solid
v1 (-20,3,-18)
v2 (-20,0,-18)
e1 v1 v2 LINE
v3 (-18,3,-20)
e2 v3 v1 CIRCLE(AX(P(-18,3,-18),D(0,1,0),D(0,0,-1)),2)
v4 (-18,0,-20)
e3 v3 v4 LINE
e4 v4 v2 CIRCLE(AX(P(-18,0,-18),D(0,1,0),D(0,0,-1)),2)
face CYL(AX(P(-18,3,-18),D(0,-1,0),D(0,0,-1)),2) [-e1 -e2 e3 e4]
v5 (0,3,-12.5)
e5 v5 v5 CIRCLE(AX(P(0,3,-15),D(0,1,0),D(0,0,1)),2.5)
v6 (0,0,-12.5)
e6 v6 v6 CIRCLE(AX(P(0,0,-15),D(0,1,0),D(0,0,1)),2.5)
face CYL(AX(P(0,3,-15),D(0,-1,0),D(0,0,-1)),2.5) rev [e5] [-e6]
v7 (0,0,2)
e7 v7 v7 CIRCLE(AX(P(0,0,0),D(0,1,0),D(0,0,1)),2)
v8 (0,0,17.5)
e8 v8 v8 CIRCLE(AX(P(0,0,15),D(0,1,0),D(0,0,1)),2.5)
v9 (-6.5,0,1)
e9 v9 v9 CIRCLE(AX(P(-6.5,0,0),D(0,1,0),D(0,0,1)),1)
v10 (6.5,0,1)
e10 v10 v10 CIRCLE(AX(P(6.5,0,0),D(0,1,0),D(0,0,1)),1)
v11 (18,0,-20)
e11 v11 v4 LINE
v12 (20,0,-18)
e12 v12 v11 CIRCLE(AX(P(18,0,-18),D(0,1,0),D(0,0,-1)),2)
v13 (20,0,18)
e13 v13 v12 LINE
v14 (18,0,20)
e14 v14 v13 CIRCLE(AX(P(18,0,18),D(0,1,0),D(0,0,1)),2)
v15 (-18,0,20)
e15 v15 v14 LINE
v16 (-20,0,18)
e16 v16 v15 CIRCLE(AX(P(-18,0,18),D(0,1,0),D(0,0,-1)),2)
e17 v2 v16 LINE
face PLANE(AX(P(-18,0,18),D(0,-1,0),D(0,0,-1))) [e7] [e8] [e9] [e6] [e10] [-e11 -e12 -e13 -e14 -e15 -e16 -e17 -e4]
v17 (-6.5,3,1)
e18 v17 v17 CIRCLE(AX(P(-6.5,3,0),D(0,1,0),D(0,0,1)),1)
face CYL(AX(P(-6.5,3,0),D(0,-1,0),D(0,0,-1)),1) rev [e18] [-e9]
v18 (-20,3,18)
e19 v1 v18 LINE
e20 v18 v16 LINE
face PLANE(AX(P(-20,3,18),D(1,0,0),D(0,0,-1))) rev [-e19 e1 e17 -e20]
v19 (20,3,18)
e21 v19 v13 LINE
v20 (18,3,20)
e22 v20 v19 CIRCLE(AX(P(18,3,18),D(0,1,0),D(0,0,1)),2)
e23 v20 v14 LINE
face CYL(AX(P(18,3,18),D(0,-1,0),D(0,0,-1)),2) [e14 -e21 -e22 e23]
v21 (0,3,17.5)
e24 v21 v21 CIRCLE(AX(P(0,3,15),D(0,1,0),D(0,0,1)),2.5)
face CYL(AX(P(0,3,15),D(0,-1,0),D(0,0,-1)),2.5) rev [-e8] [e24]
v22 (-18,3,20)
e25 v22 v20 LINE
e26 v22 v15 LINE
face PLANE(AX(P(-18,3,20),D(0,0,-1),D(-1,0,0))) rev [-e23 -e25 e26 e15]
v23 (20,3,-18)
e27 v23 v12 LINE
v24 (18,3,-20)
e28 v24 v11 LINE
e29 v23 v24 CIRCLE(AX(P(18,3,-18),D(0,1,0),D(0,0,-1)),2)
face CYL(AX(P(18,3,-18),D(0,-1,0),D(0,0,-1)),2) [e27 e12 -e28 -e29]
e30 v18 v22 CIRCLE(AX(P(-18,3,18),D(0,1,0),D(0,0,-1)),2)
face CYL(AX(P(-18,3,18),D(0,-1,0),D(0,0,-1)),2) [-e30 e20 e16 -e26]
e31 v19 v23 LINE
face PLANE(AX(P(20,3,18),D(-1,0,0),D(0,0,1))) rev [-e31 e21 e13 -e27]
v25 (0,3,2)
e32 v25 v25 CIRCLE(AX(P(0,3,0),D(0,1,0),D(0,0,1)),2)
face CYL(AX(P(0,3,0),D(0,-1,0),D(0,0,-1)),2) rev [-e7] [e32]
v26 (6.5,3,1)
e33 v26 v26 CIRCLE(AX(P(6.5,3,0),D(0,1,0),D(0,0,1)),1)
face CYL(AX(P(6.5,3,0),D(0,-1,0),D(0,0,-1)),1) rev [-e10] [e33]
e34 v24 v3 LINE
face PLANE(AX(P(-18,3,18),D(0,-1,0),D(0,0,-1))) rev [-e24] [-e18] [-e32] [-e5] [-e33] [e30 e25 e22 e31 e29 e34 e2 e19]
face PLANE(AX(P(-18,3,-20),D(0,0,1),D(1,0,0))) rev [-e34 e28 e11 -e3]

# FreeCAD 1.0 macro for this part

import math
import FreeCAD as App
import Part
import Sketcher
from FreeCAD import Vector
Q = App.Units.Quantity

doc = App.newDocument("Part")
body = doc.addObject("PartDesign::Body", "Body")

sketch1 = doc.addObject("Sketcher::SketchObject", "Sketch")
body.addObject(sketch1)
sketch1.AttachmentSupport = (doc.XZ_Plane, [""])
sketch1.MapMode = "FlatFace"
sketch1.addGeometry([
    Part.LineSegment(Vector(-18, 20, 0), Vector(18, 20, 0)),
    Part.ArcOfCircle(Part.Circle(Vector(18, 18, 0), Vector(0, 0, 1), 2), math.radians(0), math.radians(90)),
    Part.LineSegment(Vector(20, 18, 0), Vector(20, -18, 0)),
    Part.ArcOfCircle(Part.Circle(Vector(18, -18, 0), Vector(0, 0, 1), 2), math.radians(-90), math.radians(0)),
    Part.LineSegment(Vector(18, -20, 0), Vector(-18, -20, 0)),
    Part.ArcOfCircle(Part.Circle(Vector(-18, -18, 0), Vector(0, 0, 1), 2), math.radians(-180), math.radians(-90)),
    Part.LineSegment(Vector(-20, -18, 0), Vector(-20, 18, 0)),
    Part.ArcOfCircle(Part.Circle(Vector(-18, 18, 0), Vector(0, 0, 1), 2), math.radians(90), math.radians(180)),
], False)
sketch1.addConstraint([
    Sketcher.Constraint("Tangent", 0, 2, 1, 2),
    Sketcher.Constraint("Tangent", 1, 1, 2, 1),
    Sketcher.Constraint("Tangent", 2, 2, 3, 2),
    Sketcher.Constraint("Tangent", 3, 1, 4, 1),
    Sketcher.Constraint("Tangent", 4, 2, 5, 2),
    Sketcher.Constraint("Tangent", 5, 1, 6, 1),
    Sketcher.Constraint("Tangent", 6, 2, 7, 2),
    Sketcher.Constraint("Tangent", 7, 1, 0, 1),
    Sketcher.Constraint("Horizontal", 0),
    Sketcher.Constraint("Vertical", 2),
    Sketcher.Constraint("Horizontal", 4),
    Sketcher.Constraint("Vertical", 6),
    Sketcher.Constraint("Equal", 1, 3),
    Sketcher.Constraint("Equal", 3, 5),
    Sketcher.Constraint("Equal", 5, 7),
    Sketcher.Constraint("Symmetric", 1, 3, 5, 3, -1, 1),
    Sketcher.Constraint("Equal", 4, 2),
    Sketcher.Constraint("Radius", 1, Q("2 mm")),
    Sketcher.Constraint("DistanceX", 0, 1, 0, 2, Q("36 mm")),
])
pad1 = doc.addObject("PartDesign::Pad", "Pad")
body.addObject(pad1)
pad1.Profile = sketch1
pad1.Length = 3
pad1.Reversed = True

sketch2 = doc.addObject("Sketcher::SketchObject", "Sketch001")
body.addObject(sketch2)
sketch2.AttachmentSupport = (doc.XZ_Plane, [""])
sketch2.MapMode = "FlatFace"
sketch2.addGeometry([
    Part.Circle(Vector(0, 0, 0), Vector(0, 0, 1), 2),
    Part.Circle(Vector(0, -15, 0), Vector(0, 0, 1), 2.5),
    Part.Circle(Vector(0, 15, 0), Vector(0, 0, 1), 2.5),
], False)
sketch2.addConstraint([
    Sketcher.Constraint("Coincident", 0, 3, -1, 1),
    Sketcher.Constraint("Equal", 1, 2),
    Sketcher.Constraint("Symmetric", 1, 3, 2, 3, -1, 1),
    Sketcher.Constraint("PointOnObject", 1, 3, -2),
    Sketcher.Constraint("Diameter", 0, Q("4 mm")),
    Sketcher.Constraint("Diameter", 1, Q("5 mm")),
    Sketcher.Constraint("DistanceY", 1, 3, -1, 1, Q("15 mm")),
])
pocket1 = doc.addObject("PartDesign::Pocket", "Pocket")
body.addObject(pocket1)
pocket1.Profile = sketch2
pocket1.Type = "ThroughAll"

sketch3 = doc.addObject("Sketcher::SketchObject", "Sketch002")
body.addObject(sketch3)
sketch3.AttachmentSupport = (doc.XZ_Plane, [""])
sketch3.MapMode = "FlatFace"
sketch3.addGeometry([
    Part.Circle(Vector(6.5, 0, 0), Vector(0, 0, 1), 1),
    Part.Circle(Vector(-6.5, 0, 0), Vector(0, 0, 1), 1),
], False)
sketch3.addConstraint([
    Sketcher.Constraint("Equal", 0, 1),
    Sketcher.Constraint("Symmetric", 0, 3, 1, 3, -1, 1),
    Sketcher.Constraint("PointOnObject", 0, 3, -1),
    Sketcher.Constraint("Diameter", 0, Q("2 mm")),
    Sketcher.Constraint("DistanceX", 1, 3, 0, 3, Q("13 mm")),
])
pocket2 = doc.addObject("PartDesign::Pocket", "Pocket001")
body.addObject(pocket2)
pocket2.Profile = sketch3
pocket2.Length = 3

doc.recompute()
